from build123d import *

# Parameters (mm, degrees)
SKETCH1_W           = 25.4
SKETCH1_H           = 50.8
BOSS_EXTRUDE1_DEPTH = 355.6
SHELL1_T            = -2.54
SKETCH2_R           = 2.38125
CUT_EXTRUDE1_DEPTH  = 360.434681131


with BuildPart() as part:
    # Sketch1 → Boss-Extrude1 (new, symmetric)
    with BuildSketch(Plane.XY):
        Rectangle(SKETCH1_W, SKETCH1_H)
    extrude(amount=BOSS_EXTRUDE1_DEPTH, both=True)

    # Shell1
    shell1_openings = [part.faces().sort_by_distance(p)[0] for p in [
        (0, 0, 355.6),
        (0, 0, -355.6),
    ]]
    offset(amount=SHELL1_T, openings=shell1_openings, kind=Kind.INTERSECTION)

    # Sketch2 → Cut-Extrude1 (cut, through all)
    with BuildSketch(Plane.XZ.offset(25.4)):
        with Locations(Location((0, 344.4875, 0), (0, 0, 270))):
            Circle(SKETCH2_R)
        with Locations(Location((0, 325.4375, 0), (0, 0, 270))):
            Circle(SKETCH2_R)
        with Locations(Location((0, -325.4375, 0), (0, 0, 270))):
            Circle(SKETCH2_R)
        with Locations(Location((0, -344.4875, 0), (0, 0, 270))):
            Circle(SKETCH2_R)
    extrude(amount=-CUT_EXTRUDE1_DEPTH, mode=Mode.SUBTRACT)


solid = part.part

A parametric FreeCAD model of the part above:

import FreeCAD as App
import Part
import Sketcher

V = App.Vector
Q = App.Units.Quantity


def faces_at(feature, points):
    """Names of the faces that lie closest to the given points."""
    faces = feature.Shape.Faces
    near = lambda p: min(range(len(faces)), key=lambda i: faces[i].distToShape(Part.Vertex(*p))[0])
    return sorted({f"Face{near(p) + 1}" for p in points})

doc = App.newDocument("Part")
body = doc.addObject("PartDesign::Body", "Body")

# Sketch on XY plane
sketch1 = body.newObject("Sketcher::SketchObject", "Sketch")
sketch1.AttachmentSupport = (doc.getObject("XY_Plane"), [""])
sketch1.MapMode = "FlatFace"
sketch1.addGeometry(Part.LineSegment(V(-12.7, 25.4, 0), V(-12.7, -25.4, 0)), False)
sketch1.addGeometry(Part.LineSegment(V(-12.7, -25.4, 0), V(12.7, -25.4, 0)), False)
sketch1.addGeometry(Part.LineSegment(V(12.7, -25.4, 0), V(12.7, 25.4, 0)), False)
sketch1.addGeometry(Part.LineSegment(V(12.7, 25.4, 0), V(-12.7, 25.4, 0)), False)
sketch1.addConstraint(Sketcher.Constraint("Coincident", 0, 2, 1, 1))
sketch1.addConstraint(Sketcher.Constraint("Coincident", 1, 2, 2, 1))
sketch1.addConstraint(Sketcher.Constraint("Coincident", 2, 2, 3, 1))
sketch1.addConstraint(Sketcher.Constraint("Coincident", 3, 2, 0, 1))
sketch1.addConstraint(Sketcher.Constraint("Vertical", 0))
sketch1.addConstraint(Sketcher.Constraint("Horizontal", 1))
sketch1.addConstraint(Sketcher.Constraint("Vertical", 2))
sketch1.addConstraint(Sketcher.Constraint("Horizontal", 3))
sketch1.addConstraint(Sketcher.Constraint("Symmetric", 0, 2, 2, 2, -1, 1))
sketch1.addConstraint(Sketcher.Constraint("DistanceX", 1, 1, 1, 2, Q("1 in")))
sketch1.addConstraint(Sketcher.Constraint("DistanceY", 0, 2, 0, 1, Q("2 in")))
pad1 = body.newObject("PartDesign::Pad", "Pad")
pad1.Profile = sketch1
pad1.Length = Q("28 in")
pad1.Midplane = True
doc.recompute()

thickness = body.newObject("PartDesign::Thickness", "Thickness")
thickness.Base = (pad1, faces_at(pad1, [(0, 0, 355.6), (0, 0, -355.6)]))
thickness.Value = Q("0.1 in")
thickness.Reversed = True
thickness.Join = "Intersection"

# Sketch on XZ plane
sketch2 = body.newObject("Sketcher::SketchObject", "Sketch001")
sketch2.AttachmentSupport = (doc.getObject("XZ_Plane"), [""])
sketch2.MapMode = "FlatFace"
sketch2.AttachmentOffset = App.Placement(V(0, 0, 1 * 25.4), App.Rotation())
sketch2.addGeometry(Part.Circle(V(0, 344.4875, 0), V(0, 0, 1), 2.38125), False)
sketch2.addGeometry(Part.Circle(V(0, 325.4375, 0), V(0, 0, 1), 2.38125), False)
sketch2.addGeometry(Part.Circle(V(0, -325.4375, 0), V(0, 0, 1), 2.38125), False)
sketch2.addGeometry(Part.Circle(V(0, -344.4875, 0), V(0, 0, 1), 2.38125), False)
sketch2.addConstraint(Sketcher.Constraint("Equal", 0, 1))
sketch2.addConstraint(Sketcher.Constraint("Equal", 1, 2))
sketch2.addConstraint(Sketcher.Constraint("Equal", 2, 3))
sketch2.addConstraint(Sketcher.Constraint("Symmetric", 1, 3, 2, 3, -1, 1))
sketch2.addConstraint(Sketcher.Constraint("Symmetric", 0, 3, 3, 3, -1, 1))
sketch2.addConstraint(Sketcher.Constraint("PointOnObject", 0, 3, -2))
sketch2.addConstraint(Sketcher.Constraint("PointOnObject", 1, 3, -2))
sketch2.addConstraint(Sketcher.Constraint("Diameter", 0, Q("0.1875 in")))
sketch2.addConstraint(Sketcher.Constraint("DistanceY", 1, 3, 0, 3, Q("0.75 in")))
sketch2.addConstraint(Sketcher.Constraint("DistanceY", -1, 1, 0, 3, Q("13.5625 in")))
pocket1 = body.newObject("PartDesign::Pocket", "Pocket")
pocket1.Profile = sketch2
pocket1.Type = "ThroughAll"

doc.recompute()
